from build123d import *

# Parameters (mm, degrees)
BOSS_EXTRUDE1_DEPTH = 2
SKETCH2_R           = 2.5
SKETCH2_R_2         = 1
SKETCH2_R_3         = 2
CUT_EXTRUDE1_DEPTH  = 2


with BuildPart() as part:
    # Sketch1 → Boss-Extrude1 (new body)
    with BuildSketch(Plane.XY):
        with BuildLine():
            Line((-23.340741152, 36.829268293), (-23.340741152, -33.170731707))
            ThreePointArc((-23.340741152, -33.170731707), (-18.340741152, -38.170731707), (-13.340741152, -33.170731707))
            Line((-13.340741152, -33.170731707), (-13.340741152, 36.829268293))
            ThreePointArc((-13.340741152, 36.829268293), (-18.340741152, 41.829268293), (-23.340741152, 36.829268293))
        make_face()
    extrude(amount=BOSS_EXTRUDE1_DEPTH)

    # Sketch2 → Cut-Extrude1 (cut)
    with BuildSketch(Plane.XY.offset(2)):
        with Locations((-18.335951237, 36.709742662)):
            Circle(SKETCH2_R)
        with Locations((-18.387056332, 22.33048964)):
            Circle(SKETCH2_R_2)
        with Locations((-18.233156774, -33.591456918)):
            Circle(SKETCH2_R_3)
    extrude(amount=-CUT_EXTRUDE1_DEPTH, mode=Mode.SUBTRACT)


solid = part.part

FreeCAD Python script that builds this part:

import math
import FreeCAD as App
import Part
import Sketcher
Q = App.Units.Quantity

doc = App.newDocument("Part")
body = doc.addObject("PartDesign::Body", "Body")

sketch1 = body.newObject("Sketcher::SketchObject", "Sketch")
sketch1.AttachmentSupport = (doc.getObject("XY_Plane"), [""])
sketch1.MapMode = "FlatFace"
sketch1.addGeometry([
    Part.LineSegment(App.Vector(-23, 37, 0), App.Vector(-23, -33, 0)),
    Part.ArcOfCircle(Part.Circle(App.Vector(-18, -33, 0), App.Vector(0, 0, 1), 5), math.radians(180), math.radians(360)),
    Part.LineSegment(App.Vector(-13, -33, 0), App.Vector(-13, 37, 0)),
    Part.ArcOfCircle(Part.Circle(App.Vector(-18, 37, 0), App.Vector(0, 0, 1), 5), math.radians(0), math.radians(180)),
], False)
sketch1.addConstraint([
    Sketcher.Constraint("Tangent", 0, 2, 1, 1),
    Sketcher.Constraint("Tangent", 1, 2, 2, 1),
    Sketcher.Constraint("Tangent", 2, 2, 3, 1),
    Sketcher.Constraint("Tangent", 3, 2, 0, 1),
    Sketcher.Constraint("Vertical", 0),
    Sketcher.Constraint("Vertical", 2),
    Sketcher.Constraint("Radius", 1, Q("5 mm")),
    Sketcher.Constraint("DistanceY", 0, 2, 0, 1, Q("70 mm")),
    Sketcher.Constraint("DistanceX", 1, 3, -1, 1, Q("18.340741 mm")),
    Sketcher.Constraint("DistanceY", 1, 3, -1, 1, Q("33.170732 mm")),
])
pad1 = body.newObject("PartDesign::Pad", "Pad")
pad1.Profile = sketch1
pad1.Length = 2

sketch2 = body.newObject("Sketcher::SketchObject", "Sketch001")
sketch2.AttachmentSupport = (doc.getObject("XY_Plane"), [""])
sketch2.MapMode = "FlatFace"
sketch2.AttachmentOffset = App.Placement(App.Vector(0, 0, 2), App.Rotation())
sketch2.addGeometry([
    Part.Circle(App.Vector(-18.3, 36.7, 0), App.Vector(0, 0, 1), 2.5),
    Part.Circle(App.Vector(-18.4, 22.3, 0), App.Vector(0, 0, 1), 1),
    Part.Circle(App.Vector(-18.2, -33.6, 0), App.Vector(0, 0, 1), 2),
], False)
sketch2.addConstraint([
    Sketcher.Constraint("Diameter", 0, Q("5 mm")),
    Sketcher.Constraint("Diameter", 1, Q("2 mm")),
    Sketcher.Constraint("Diameter", 2, Q("4 mm")),
    Sketcher.Constraint("DistanceX", 1, 3, 2, 3, Q("0.1539 mm")),
    Sketcher.Constraint("DistanceY", 2, 3, 0, 3, Q("70.3012 mm")),
    Sketcher.Constraint("DistanceX", 0, 3, -1, 1, Q("18.335951 mm")),
    Sketcher.Constraint("DistanceY", -1, 1, 1, 3, Q("22.33049 mm")),
    Sketcher.Constraint("DistanceY", -1, 1, 0, 3, Q("36.709743 mm")),
    Sketcher.Constraint("DistanceX", 1, 3, -1, 1, Q("18.387056 mm")),
])
pocket1 = body.newObject("PartDesign::Pocket", "Pocket")
pocket1.Profile = sketch2
pocket1.Length = 2

doc.recompute()
